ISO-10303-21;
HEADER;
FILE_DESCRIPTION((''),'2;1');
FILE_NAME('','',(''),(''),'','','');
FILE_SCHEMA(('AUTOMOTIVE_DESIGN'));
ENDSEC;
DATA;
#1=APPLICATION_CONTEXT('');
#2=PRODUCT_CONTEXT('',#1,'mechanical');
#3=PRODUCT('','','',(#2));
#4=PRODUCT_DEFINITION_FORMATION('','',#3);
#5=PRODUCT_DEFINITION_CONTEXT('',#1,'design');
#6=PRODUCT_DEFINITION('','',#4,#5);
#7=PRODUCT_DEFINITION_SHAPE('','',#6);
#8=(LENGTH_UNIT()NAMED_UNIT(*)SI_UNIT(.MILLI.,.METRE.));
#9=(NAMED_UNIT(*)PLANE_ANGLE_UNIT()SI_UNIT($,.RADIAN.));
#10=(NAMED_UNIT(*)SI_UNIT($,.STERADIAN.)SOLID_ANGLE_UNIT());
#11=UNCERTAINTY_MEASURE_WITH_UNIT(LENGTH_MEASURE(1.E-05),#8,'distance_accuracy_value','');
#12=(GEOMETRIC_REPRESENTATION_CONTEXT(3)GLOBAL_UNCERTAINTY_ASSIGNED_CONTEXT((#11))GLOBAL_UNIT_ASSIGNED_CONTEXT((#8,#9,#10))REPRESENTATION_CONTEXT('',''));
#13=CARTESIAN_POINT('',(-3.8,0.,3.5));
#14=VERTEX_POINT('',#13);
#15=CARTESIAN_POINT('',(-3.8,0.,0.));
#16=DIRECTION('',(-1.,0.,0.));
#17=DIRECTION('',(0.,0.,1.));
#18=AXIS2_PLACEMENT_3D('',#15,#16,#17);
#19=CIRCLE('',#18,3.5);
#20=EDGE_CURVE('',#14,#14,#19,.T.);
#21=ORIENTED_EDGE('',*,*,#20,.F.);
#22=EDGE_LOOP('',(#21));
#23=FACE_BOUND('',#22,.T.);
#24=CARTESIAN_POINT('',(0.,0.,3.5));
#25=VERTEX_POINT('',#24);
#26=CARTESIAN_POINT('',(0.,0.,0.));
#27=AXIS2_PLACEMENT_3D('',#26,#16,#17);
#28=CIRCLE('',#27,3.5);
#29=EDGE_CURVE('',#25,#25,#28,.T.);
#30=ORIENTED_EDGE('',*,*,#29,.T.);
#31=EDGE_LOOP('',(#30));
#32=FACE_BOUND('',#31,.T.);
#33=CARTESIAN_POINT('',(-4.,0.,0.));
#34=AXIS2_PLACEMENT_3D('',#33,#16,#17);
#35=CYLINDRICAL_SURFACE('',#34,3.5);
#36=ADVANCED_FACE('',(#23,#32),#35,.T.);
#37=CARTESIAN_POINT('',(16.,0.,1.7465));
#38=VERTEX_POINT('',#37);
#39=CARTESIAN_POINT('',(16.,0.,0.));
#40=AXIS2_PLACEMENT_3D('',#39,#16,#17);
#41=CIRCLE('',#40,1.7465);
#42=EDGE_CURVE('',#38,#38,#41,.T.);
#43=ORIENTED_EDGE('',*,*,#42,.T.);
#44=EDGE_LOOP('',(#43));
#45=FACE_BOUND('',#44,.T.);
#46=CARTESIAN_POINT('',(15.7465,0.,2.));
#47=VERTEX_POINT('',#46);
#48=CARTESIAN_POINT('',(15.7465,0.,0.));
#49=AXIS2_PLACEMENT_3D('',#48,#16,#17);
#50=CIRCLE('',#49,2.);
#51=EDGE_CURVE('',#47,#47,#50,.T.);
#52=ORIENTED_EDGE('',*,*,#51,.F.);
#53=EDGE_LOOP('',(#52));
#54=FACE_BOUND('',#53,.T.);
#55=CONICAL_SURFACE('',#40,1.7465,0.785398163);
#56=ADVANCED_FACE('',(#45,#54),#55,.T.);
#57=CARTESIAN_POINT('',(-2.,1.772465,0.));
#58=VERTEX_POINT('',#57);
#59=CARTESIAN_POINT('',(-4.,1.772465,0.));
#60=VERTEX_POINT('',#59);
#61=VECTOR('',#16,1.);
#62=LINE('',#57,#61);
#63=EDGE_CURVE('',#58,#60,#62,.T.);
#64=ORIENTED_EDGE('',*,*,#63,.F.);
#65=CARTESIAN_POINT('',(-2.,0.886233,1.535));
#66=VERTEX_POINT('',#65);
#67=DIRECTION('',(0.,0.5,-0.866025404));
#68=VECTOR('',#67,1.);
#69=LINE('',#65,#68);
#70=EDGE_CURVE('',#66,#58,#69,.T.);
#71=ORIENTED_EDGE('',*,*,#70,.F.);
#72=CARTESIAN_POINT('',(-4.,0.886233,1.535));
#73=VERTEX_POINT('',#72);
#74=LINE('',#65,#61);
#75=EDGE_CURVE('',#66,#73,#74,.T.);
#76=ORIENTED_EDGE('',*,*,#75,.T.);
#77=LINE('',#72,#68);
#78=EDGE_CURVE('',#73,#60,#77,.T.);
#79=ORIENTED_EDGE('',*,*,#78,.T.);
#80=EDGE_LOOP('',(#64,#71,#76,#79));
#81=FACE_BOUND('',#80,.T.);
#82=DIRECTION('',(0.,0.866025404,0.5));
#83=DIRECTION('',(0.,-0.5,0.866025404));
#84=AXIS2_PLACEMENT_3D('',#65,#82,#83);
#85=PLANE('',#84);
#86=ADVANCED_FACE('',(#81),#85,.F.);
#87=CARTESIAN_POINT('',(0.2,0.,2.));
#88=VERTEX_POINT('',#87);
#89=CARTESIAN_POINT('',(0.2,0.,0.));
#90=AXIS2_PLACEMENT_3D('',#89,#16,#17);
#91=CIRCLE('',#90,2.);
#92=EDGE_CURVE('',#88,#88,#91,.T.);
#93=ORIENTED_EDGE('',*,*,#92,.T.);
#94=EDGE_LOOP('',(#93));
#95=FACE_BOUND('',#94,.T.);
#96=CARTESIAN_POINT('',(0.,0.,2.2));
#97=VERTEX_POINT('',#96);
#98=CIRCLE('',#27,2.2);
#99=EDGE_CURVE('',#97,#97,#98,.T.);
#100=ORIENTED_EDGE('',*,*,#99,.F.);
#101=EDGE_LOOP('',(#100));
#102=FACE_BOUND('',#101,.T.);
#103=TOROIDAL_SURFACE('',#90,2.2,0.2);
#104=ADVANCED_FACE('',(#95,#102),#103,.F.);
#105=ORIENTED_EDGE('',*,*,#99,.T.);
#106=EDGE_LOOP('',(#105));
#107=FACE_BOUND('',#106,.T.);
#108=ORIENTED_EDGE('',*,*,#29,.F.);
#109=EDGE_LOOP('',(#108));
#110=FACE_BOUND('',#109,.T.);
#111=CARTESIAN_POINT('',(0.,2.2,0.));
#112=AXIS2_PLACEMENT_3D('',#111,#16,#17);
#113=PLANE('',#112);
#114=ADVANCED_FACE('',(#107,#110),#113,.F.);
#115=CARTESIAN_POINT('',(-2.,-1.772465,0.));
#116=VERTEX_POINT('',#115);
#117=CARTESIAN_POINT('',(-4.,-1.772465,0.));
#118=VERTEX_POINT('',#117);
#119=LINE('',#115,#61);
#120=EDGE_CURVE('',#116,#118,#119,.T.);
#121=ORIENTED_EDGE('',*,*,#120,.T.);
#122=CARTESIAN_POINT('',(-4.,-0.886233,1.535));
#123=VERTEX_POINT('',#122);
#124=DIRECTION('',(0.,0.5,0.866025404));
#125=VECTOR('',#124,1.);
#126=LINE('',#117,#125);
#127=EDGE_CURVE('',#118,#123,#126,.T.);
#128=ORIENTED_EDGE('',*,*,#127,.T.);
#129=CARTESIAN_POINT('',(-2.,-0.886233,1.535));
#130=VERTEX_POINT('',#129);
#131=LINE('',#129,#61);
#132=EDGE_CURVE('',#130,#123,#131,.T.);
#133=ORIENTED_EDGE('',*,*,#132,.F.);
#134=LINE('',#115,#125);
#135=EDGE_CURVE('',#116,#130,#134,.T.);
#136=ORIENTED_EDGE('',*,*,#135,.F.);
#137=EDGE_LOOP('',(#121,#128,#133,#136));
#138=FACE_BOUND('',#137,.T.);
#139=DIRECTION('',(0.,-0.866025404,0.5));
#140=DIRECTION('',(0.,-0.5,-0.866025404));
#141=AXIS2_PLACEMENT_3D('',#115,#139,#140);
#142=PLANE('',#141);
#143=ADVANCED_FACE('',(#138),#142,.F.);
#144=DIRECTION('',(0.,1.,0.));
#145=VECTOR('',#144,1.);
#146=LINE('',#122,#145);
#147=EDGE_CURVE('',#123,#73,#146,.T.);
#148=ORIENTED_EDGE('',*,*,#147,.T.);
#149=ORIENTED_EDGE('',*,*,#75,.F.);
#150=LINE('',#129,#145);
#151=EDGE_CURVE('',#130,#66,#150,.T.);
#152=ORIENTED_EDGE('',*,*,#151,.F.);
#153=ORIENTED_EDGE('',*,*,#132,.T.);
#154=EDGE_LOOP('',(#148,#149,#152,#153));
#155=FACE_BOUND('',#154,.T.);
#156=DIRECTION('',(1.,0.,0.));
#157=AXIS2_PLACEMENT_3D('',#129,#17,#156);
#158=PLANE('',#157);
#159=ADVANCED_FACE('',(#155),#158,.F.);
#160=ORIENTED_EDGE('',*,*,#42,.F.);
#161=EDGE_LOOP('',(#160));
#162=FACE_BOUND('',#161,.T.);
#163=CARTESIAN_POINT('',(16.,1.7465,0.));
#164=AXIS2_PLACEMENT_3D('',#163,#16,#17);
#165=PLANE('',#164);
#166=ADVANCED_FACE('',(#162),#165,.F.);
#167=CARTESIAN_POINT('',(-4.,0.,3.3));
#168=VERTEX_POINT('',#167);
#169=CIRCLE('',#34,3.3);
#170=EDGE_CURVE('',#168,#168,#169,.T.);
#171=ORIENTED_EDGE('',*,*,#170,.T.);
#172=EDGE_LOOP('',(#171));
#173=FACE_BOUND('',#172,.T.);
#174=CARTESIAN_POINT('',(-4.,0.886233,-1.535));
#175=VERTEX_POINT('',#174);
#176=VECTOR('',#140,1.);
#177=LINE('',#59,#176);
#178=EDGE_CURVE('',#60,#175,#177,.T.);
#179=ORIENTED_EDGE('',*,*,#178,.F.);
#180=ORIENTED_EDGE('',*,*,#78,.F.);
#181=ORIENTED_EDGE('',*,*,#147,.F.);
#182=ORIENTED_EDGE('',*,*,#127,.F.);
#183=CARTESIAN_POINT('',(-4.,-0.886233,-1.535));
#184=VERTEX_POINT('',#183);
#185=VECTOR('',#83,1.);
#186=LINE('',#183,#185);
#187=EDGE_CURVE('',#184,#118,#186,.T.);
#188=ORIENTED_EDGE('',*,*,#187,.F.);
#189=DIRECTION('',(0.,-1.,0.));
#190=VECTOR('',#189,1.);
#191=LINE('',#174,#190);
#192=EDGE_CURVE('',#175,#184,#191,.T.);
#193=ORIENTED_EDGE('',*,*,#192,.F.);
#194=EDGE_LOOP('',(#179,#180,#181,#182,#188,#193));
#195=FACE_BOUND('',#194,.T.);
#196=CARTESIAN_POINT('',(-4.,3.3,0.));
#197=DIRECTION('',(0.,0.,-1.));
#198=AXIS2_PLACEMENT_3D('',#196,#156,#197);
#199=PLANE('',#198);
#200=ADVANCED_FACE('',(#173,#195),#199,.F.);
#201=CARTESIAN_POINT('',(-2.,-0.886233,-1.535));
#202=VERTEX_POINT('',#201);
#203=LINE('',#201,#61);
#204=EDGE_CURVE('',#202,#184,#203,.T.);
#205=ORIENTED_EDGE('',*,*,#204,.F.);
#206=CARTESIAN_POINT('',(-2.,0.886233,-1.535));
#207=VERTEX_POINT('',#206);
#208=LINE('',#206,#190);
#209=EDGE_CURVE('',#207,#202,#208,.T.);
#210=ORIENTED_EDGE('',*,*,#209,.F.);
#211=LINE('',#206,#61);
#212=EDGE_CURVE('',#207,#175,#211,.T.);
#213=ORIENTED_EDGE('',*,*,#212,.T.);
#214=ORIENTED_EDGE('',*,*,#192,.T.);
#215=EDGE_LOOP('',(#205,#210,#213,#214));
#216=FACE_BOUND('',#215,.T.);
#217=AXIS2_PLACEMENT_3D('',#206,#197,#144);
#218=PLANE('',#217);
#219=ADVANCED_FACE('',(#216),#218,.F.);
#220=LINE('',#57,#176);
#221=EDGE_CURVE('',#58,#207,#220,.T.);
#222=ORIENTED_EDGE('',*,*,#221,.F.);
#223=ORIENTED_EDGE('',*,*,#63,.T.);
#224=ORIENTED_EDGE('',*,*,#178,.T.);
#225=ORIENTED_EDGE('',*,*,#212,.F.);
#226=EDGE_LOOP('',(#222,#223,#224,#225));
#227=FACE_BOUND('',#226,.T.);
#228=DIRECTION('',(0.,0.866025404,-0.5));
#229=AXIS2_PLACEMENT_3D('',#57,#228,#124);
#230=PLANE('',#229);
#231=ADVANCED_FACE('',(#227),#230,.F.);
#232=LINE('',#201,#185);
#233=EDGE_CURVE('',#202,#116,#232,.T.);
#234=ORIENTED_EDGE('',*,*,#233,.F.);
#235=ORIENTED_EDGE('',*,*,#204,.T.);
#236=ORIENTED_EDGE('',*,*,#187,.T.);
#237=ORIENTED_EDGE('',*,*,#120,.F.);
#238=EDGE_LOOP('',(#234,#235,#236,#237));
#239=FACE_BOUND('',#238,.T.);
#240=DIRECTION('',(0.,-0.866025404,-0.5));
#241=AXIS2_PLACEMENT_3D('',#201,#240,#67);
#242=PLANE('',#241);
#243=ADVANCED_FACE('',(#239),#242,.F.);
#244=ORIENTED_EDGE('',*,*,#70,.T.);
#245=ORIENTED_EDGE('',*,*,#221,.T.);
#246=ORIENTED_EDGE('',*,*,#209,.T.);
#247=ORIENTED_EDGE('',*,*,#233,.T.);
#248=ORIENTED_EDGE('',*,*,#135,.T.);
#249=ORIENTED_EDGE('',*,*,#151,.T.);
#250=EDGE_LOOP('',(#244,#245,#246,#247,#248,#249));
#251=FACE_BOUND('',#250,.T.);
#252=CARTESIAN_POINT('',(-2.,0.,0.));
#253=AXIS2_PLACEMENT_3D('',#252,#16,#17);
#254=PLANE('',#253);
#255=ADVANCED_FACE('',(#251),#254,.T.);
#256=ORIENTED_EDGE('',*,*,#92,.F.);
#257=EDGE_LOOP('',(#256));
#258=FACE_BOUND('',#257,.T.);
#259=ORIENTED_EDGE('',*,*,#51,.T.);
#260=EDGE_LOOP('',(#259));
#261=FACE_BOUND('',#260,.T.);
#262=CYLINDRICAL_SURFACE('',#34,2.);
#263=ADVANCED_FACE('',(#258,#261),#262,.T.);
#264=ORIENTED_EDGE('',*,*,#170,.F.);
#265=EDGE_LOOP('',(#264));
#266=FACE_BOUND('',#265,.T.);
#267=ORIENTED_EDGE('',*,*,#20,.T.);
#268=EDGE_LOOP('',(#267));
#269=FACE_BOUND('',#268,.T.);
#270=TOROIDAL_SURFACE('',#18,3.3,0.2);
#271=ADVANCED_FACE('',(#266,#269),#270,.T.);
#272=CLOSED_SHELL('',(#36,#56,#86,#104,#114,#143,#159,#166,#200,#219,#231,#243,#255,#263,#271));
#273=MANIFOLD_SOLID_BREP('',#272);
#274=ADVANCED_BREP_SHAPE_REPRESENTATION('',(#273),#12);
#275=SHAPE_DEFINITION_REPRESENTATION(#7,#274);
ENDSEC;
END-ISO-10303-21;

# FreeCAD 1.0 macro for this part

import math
import FreeCAD as App
import Part
import Sketcher

V = App.Vector
Q = App.Units.Quantity


def add_polygon(sketch, points):
    """Adds a closed chain of lines whose ends are joined by coincident constraints."""
    first, n = sketch.GeometryCount, len(points)
    for a, b in zip(points, points[1:] + points[:1]):
        sketch.addGeometry(Part.LineSegment(App.Vector(*a, 0), App.Vector(*b, 0)), False)
    for i in range(n):
        sketch.addConstraint(Sketcher.Constraint("Coincident", first + i, 2, first + (i + 1) % n, 1))

doc = App.newDocument("Part")
body = doc.addObject("PartDesign::Body", "Body")

# Sketch on XY plane
sketch1 = doc.addObject("Sketcher::SketchObject", "Sketch")
body.addObject(sketch1)
sketch1.AttachmentSupport = (doc.XY_Plane, [""])
sketch1.MapMode = "FlatFace"
sketch1.addGeometry([
    Part.LineSegment(V(15.75, 2, 0), V(0.2, 2, 0)),  # 0
    Part.ArcOfCircle(Part.Circle(V(0.2, 2.2, 0), V(0, 0, 1), 0.2), math.radians(-180), math.radians(-90)),  # 1
    Part.LineSegment(V(0, 2.2, 0), V(0, 3.5, 0)),  # 2
    Part.LineSegment(V(0, 3.5, 0), V(-3.8, 3.5, 0)),  # 3
    Part.ArcOfCircle(Part.Circle(V(-3.8, 3.3, 0), V(0, 0, 1), 0.2), math.radians(90), math.radians(180)),  # 4
    Part.LineSegment(V(-4, 3.3, 0), V(-4, 0, 0)),  # 5
    Part.LineSegment(V(-4, 0, 0), V(16, 0, 0)),  # 6
    Part.LineSegment(V(16, 0, 0), V(16, 1.75, 0)),  # 7
    Part.LineSegment(V(16, 1.75, 0), V(15.75, 2, 0)),  # 8
], False)
sketch1.addConstraint([
    Sketcher.Constraint("Tangent", 0, 2, 1, 2),
    Sketcher.Constraint("Tangent", 1, 1, 2, 1),
    Sketcher.Constraint("Coincident", 2, 2, 3, 1),
    Sketcher.Constraint("Tangent", 3, 2, 4, 1),
    Sketcher.Constraint("Tangent", 4, 2, 5, 1),
    Sketcher.Constraint("Coincident", 5, 2, 6, 1),
    Sketcher.Constraint("Coincident", 6, 2, 7, 1),
    Sketcher.Constraint("Coincident", 7, 2, 8, 1),
    Sketcher.Constraint("Coincident", 8, 2, 0, 1),
    Sketcher.Constraint("Horizontal", 0),
    Sketcher.Constraint("Vertical", 2),
    Sketcher.Constraint("Horizontal", 3),
    Sketcher.Constraint("Vertical", 5),
    Sketcher.Constraint("Horizontal", 6),
    Sketcher.Constraint("Vertical", 7),
    Sketcher.Constraint("Equal", 1, 4),
    Sketcher.Constraint("PointOnObject", 1, 1, -2),
    Sketcher.Constraint("PointOnObject", 5, 2, -1),
    Sketcher.Constraint("Radius", 1, 0.2),
    Sketcher.Constraint("DistanceX", 6, 1, 6, 2, 20.0),
    Sketcher.Constraint("Angle", 8, Q("135 deg")),
    Sketcher.Constraint("DistanceX", 3, 2, 3, 1, 3.8),
    Sketcher.Constraint("DistanceY", 2, 1, 2, 2, 1.3),
    Sketcher.Constraint("DistanceY", 5, 2, 5, 1, 3.3),
    Sketcher.Constraint("DistanceX", 0, 2, 0, 1, 15.5465),
])
revolution = doc.addObject("PartDesign::Revolution", "Revolution")
body.addObject(revolution)
revolution.Profile = sketch1
revolution.ReferenceAxis = (sketch1, ["H_Axis"])
revolution.Angle = 360

# Sketch on YZ plane
sketch2 = doc.addObject("Sketcher::SketchObject", "Sketch001")
body.addObject(sketch2)
sketch2.AttachmentSupport = (doc.YZ_Plane, [""])
sketch2.MapMode = "FlatFace"
sketch2.AttachmentOffset = App.Placement(V(0, 0, -4), App.Rotation())
add_polygon(sketch2, [(0.9, 1.5), (1.8, 0), (0.9, -1.5), (-0.9, -1.5), (-1.8, 0), (-0.9, 1.5)])  # lines 0-5
sketch2.addConstraint([
    Sketcher.Constraint("Horizontal", 2),
    Sketcher.Constraint("Horizontal", 5),
    Sketcher.Constraint("Symmetric", 0, 2, 3, 2, -1, 1),
    Sketcher.Constraint("Symmetric", 1, 2, 4, 2, -1, 1),
    Sketcher.Constraint("PointOnObject", 0, 2, -1),
    Sketcher.Constraint("Parallel", 0, 3),
    Sketcher.Constraint("Vertical", 2, 2, 4, 2),
    Sketcher.Constraint("Angle", 0, Q("-60 deg")),
    Sketcher.Constraint("DistanceY", 2, 2, 4, 2, 3.07),
    Sketcher.Constraint("DistanceX", 2, 2, 2, 1, 1.772465),
])
pocket1 = doc.addObject("PartDesign::Pocket", "Pocket")
body.addObject(pocket1)
pocket1.Profile = sketch2
pocket1.Length = 2
pocket1.Reversed = True

doc.recompute()
